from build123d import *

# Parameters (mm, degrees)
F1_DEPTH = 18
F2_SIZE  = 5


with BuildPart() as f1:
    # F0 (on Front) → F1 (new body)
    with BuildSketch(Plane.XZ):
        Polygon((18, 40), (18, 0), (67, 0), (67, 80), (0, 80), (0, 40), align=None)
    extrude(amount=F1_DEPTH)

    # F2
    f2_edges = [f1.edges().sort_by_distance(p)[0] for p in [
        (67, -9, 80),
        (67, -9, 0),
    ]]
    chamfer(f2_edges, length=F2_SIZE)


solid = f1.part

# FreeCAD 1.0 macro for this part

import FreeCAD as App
import Part
import Sketcher
Q = App.Units.Quantity


def edges_at(feature, points):
    """Names of the edges that pass closest to the given points."""
    edges = feature.Shape.Edges
    near = lambda p: min(range(len(edges)), key=lambda i: edges[i].distToShape(Part.Vertex(*p))[0])
    return sorted({f"Edge{near(p) + 1}" for p in points})


def add_polygon(sketch, points):
    """Adds a closed chain of lines whose ends are joined by coincident constraints."""
    first, n = sketch.GeometryCount, len(points)
    for a, b in zip(points, points[1:] + points[:1]):
        sketch.addGeometry(Part.LineSegment(App.Vector(*a, 0), App.Vector(*b, 0)), False)
    for i in range(n):
        sketch.addConstraint(Sketcher.Constraint("Coincident", first + i, 2, first + (i + 1) % n, 1))

doc = App.newDocument("Part")
body = doc.addObject("PartDesign::Body", "Body")

# Sketch on XZ plane
sketch1 = body.newObject("Sketcher::SketchObject", "Sketch")
sketch1.AttachmentSupport = (doc.getObject("XZ_Plane"), [""])
sketch1.MapMode = "FlatFace"
add_polygon(sketch1, [(18, 40), (18, 0), (67, 0), (67, 80), (0, 80), (0, 40)])  # lines 0-5
sketch1.addConstraint([
    Sketcher.Constraint("Vertical", 0),
    Sketcher.Constraint("Horizontal", 1),
    Sketcher.Constraint("Vertical", 2),
    Sketcher.Constraint("Horizontal", 3),
    Sketcher.Constraint("Vertical", 4),
    Sketcher.Constraint("Horizontal", 5),
    Sketcher.Constraint("PointOnObject", 0, 2, -1),
    Sketcher.Constraint("PointOnObject", 3, 2, -2),
    Sketcher.Constraint("Equal", 0, 4),
    Sketcher.Constraint("DistanceX", 1, 1, 1, 2, Q("49 mm")),
    Sketcher.Constraint("DistanceX", 3, 2, 3, 1, Q("67 mm")),
    Sketcher.Constraint("DistanceY", 0, 2, 0, 1, Q("40 mm")),
])
pad1 = body.newObject("PartDesign::Pad", "Pad")
pad1.Profile = sketch1
pad1.Length = 18
doc.recompute()

chamfer = body.newObject("PartDesign::Chamfer", "Chamfer")
chamfer.Base = (pad1, edges_at(pad1, [(67, -9, 80), (67, -9, 0)]))
chamfer.Size = 5

doc.recompute()
